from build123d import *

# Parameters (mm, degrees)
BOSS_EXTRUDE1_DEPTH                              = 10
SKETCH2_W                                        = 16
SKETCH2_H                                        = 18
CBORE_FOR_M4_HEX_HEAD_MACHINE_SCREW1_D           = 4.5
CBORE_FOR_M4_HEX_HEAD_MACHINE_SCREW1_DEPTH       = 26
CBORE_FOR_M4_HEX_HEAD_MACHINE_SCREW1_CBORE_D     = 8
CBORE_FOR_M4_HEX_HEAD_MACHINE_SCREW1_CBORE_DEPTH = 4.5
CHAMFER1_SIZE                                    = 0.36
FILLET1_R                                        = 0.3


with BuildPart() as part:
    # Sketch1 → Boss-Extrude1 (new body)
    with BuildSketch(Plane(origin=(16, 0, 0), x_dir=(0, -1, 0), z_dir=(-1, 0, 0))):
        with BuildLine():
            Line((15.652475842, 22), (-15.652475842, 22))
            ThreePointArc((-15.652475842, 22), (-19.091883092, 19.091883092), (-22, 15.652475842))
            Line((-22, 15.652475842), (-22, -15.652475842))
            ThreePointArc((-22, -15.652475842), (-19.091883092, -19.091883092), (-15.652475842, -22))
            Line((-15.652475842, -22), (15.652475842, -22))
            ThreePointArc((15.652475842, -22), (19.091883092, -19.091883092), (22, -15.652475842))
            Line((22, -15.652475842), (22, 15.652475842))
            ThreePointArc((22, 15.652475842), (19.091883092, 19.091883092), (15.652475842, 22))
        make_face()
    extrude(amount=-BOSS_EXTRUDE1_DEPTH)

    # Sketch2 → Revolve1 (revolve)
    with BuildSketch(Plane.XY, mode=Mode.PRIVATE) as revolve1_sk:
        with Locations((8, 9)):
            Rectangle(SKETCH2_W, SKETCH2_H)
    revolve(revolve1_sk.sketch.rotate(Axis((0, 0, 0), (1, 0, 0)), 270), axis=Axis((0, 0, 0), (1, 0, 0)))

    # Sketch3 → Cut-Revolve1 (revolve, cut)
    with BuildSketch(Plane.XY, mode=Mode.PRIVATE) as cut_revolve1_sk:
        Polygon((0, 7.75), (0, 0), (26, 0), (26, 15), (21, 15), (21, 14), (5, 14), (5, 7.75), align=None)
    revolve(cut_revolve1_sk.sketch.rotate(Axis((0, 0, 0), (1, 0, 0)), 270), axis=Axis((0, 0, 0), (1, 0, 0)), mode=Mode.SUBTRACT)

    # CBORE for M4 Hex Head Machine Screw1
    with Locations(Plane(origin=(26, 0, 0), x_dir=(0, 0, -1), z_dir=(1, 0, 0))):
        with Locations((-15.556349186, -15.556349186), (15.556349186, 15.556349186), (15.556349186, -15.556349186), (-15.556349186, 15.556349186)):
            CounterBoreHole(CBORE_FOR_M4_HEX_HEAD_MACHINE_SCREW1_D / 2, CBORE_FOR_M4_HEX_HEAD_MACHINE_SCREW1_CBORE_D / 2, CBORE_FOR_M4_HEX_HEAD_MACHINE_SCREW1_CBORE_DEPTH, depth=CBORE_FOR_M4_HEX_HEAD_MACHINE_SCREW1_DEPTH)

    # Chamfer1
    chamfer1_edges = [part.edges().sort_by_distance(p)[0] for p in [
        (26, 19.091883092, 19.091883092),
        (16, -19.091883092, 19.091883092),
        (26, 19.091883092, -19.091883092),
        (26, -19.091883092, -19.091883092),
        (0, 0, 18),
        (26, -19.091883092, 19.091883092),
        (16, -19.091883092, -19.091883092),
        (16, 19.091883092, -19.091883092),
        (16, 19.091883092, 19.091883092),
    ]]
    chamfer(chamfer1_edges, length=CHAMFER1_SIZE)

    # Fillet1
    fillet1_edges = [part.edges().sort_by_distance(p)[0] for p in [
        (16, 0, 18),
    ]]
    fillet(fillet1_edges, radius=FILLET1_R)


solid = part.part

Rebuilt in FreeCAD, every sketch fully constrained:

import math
import FreeCAD as App
import Part
import Sketcher
from FreeCAD import Vector


def edges_at(feature, points):
    """Names of the edges that pass closest to the given points."""
    edges = feature.Shape.Edges
    near = lambda p: min(range(len(edges)), key=lambda i: edges[i].distToShape(Part.Vertex(*p))[0])
    return sorted({f"Edge{near(p) + 1}" for p in points})

doc = App.newDocument("Part")
body = doc.addObject("PartDesign::Body", "Body")

# Sketch on YZ plane
sketch1 = doc.addObject("Sketcher::SketchObject", "Sketch")
body.addObject(sketch1)
sketch1.AttachmentSupport = (doc.YZ_Plane, [""])
sketch1.MapMode = "FlatFace"
sketch1.AttachmentOffset = App.Placement(Vector(0, 0, 16), App.Rotation())
sketch1.addGeometry(Part.LineSegment(Vector(-15.652476, 22, 0), Vector(15.652476, 22, 0)), False)
sketch1.addGeometry(Part.ArcOfCircle(Part.Circle(Vector(0, 0, 0), Vector(0, 0, 1), 27), math.radians(35.430945), math.radians(54.569055)), False)
sketch1.addGeometry(Part.LineSegment(Vector(22, 15.652476, 0), Vector(22, -15.652476, 0)), False)
sketch1.addGeometry(Part.ArcOfCircle(Part.Circle(Vector(0, 0, 0), Vector(0, 0, 1), 27), math.radians(-54.569055), math.radians(-35.430945)), False)
sketch1.addGeometry(Part.LineSegment(Vector(15.652476, -22, 0), Vector(-15.652476, -22, 0)), False)
sketch1.addGeometry(Part.ArcOfCircle(Part.Circle(Vector(0, 0, 0), Vector(0, 0, 1), 27), math.radians(-144.569055), math.radians(-125.430945)), False)
sketch1.addGeometry(Part.LineSegment(Vector(-22, -15.652476, 0), Vector(-22, 15.652476, 0)), False)
sketch1.addGeometry(Part.ArcOfCircle(Part.Circle(Vector(0, 0, 0), Vector(0, 0, 1), 27), math.radians(125.430945), math.radians(144.569055)), False)
sketch1.addConstraint(Sketcher.Constraint("Coincident", 0, 2, 1, 2))
sketch1.addConstraint(Sketcher.Constraint("Coincident", 1, 1, 2, 1))
sketch1.addConstraint(Sketcher.Constraint("Coincident", 2, 2, 3, 2))
sketch1.addConstraint(Sketcher.Constraint("Coincident", 3, 1, 4, 1))
sketch1.addConstraint(Sketcher.Constraint("Coincident", 4, 2, 5, 2))
sketch1.addConstraint(Sketcher.Constraint("Coincident", 5, 1, 6, 1))
sketch1.addConstraint(Sketcher.Constraint("Coincident", 6, 2, 7, 2))
sketch1.addConstraint(Sketcher.Constraint("Coincident", 7, 1, 0, 1))
sketch1.addConstraint(Sketcher.Constraint("Horizontal", 0))
sketch1.addConstraint(Sketcher.Constraint("Vertical", 2))
sketch1.addConstraint(Sketcher.Constraint("Horizontal", 4))
sketch1.addConstraint(Sketcher.Constraint("Vertical", 6))
sketch1.addConstraint(Sketcher.Constraint("Coincident", 1, 3, -1, 1))
sketch1.addConstraint(Sketcher.Constraint("Coincident", 3, 3, -1, 1))
sketch1.addConstraint(Sketcher.Constraint("Coincident", 5, 3, -1, 1))
sketch1.addConstraint(Sketcher.Constraint("Coincident", 7, 3, -1, 1))
sketch1.addConstraint(Sketcher.Constraint("Equal", 1, 3))
sketch1.addConstraint(Sketcher.Constraint("Equal", 3, 5))
sketch1.addConstraint(Sketcher.Constraint("Equal", 5, 7))
sketch1.addConstraint(Sketcher.Constraint("Horizontal", 2, 2, 5, 1))
sketch1.addConstraint(Sketcher.Constraint("Vertical", 0, 2, 3, 1))
sketch1.addConstraint(Sketcher.Constraint("Equal", 4, 2))
sketch1.addConstraint(Sketcher.Constraint("Radius", 1, 27.0))
sketch1.addConstraint(Sketcher.Constraint("DistanceY", -1, 1, 0, 2, 22.0))
pad1 = doc.addObject("PartDesign::Pad", "Pad")
body.addObject(pad1)
pad1.Profile = sketch1
pad1.Length = 10

# Sketch on XY plane
sketch2 = doc.addObject("Sketcher::SketchObject", "Sketch001")
body.addObject(sketch2)
sketch2.AttachmentSupport = (doc.XY_Plane, [""])
sketch2.MapMode = "FlatFace"
sketch2.addGeometry(Part.LineSegment(Vector(0, 18, 0), Vector(0, 0, 0)), False)
sketch2.addGeometry(Part.LineSegment(Vector(0, 0, 0), Vector(16, 0, 0)), False)
sketch2.addGeometry(Part.LineSegment(Vector(16, 0, 0), Vector(16, 18, 0)), False)
sketch2.addGeometry(Part.LineSegment(Vector(16, 18, 0), Vector(0, 18, 0)), False)
sketch2.addConstraint(Sketcher.Constraint("Coincident", 0, 2, 1, 1))
sketch2.addConstraint(Sketcher.Constraint("Coincident", 1, 2, 2, 1))
sketch2.addConstraint(Sketcher.Constraint("Coincident", 2, 2, 3, 1))
sketch2.addConstraint(Sketcher.Constraint("Coincident", 3, 2, 0, 1))
sketch2.addConstraint(Sketcher.Constraint("Vertical", 0))
sketch2.addConstraint(Sketcher.Constraint("Horizontal", 1))
sketch2.addConstraint(Sketcher.Constraint("Vertical", 2))
sketch2.addConstraint(Sketcher.Constraint("Horizontal", 3))
sketch2.addConstraint(Sketcher.Constraint("Coincident", 0, 2, -1, 1))
sketch2.addConstraint(Sketcher.Constraint("DistanceX", 1, 1, 1, 2, 16.0))
sketch2.addConstraint(Sketcher.Constraint("DistanceY", 0, 2, 0, 1, 18.0))
revolution = doc.addObject("PartDesign::Revolution", "Revolution")
body.addObject(revolution)
revolution.Profile = sketch2
revolution.ReferenceAxis = (sketch2, ["H_Axis"])
revolution.Angle = 360

# Sketch on XY plane
sketch3 = doc.addObject("Sketcher::SketchObject", "Sketch002")
body.addObject(sketch3)
sketch3.AttachmentSupport = (doc.XY_Plane, [""])
sketch3.MapMode = "FlatFace"
sketch3.addGeometry(Part.LineSegment(Vector(0, 7.75, 0), Vector(0, 0, 0)), False)
sketch3.addGeometry(Part.LineSegment(Vector(0, 0, 0), Vector(26, 0, 0)), False)
sketch3.addGeometry(Part.LineSegment(Vector(26, 0, 0), Vector(26, 15, 0)), False)
sketch3.addGeometry(Part.LineSegment(Vector(26, 15, 0), Vector(21, 15, 0)), False)
sketch3.addGeometry(Part.LineSegment(Vector(21, 15, 0), Vector(21, 14, 0)), False)
sketch3.addGeometry(Part.LineSegment(Vector(21, 14, 0), Vector(5, 14, 0)), False)
sketch3.addGeometry(Part.LineSegment(Vector(5, 14, 0), Vector(5, 7.75, 0)), False)
sketch3.addGeometry(Part.LineSegment(Vector(5, 7.75, 0), Vector(0, 7.75, 0)), False)
sketch3.addConstraint(Sketcher.Constraint("Coincident", 0, 2, 1, 1))
sketch3.addConstraint(Sketcher.Constraint("Coincident", 1, 2, 2, 1))
sketch3.addConstraint(Sketcher.Constraint("Coincident", 2, 2, 3, 1))
sketch3.addConstraint(Sketcher.Constraint("Coincident", 3, 2, 4, 1))
sketch3.addConstraint(Sketcher.Constraint("Coincident", 4, 2, 5, 1))
sketch3.addConstraint(Sketcher.Constraint("Coincident", 5, 2, 6, 1))
sketch3.addConstraint(Sketcher.Constraint("Coincident", 6, 2, 7, 1))
sketch3.addConstraint(Sketcher.Constraint("Coincident", 7, 2, 0, 1))
sketch3.addConstraint(Sketcher.Constraint("Vertical", 0))
sketch3.addConstraint(Sketcher.Constraint("Horizontal", 1))
sketch3.addConstraint(Sketcher.Constraint("Vertical", 2))
sketch3.addConstraint(Sketcher.Constraint("Horizontal", 3))
sketch3.addConstraint(Sketcher.Constraint("Vertical", 4))
sketch3.addConstraint(Sketcher.Constraint("Horizontal", 5))
sketch3.addConstraint(Sketcher.Constraint("Vertical", 6))
sketch3.addConstraint(Sketcher.Constraint("Horizontal", 7))
sketch3.addConstraint(Sketcher.Constraint("Coincident", 0, 2, -1, 1))
sketch3.addConstraint(Sketcher.Constraint("Equal", 3, 7))
sketch3.addConstraint(Sketcher.Constraint("DistanceX", 1, 1, 1, 2, 26.0))
sketch3.addConstraint(Sketcher.Constraint("DistanceX", 3, 2, 3, 1, 5.0))
sketch3.addConstraint(Sketcher.Constraint("DistanceY", 2, 1, 2, 2, 15.0))
sketch3.addConstraint(Sketcher.Constraint("DistanceY", 4, 2, 4, 1, 1.0))
sketch3.addConstraint(Sketcher.Constraint("DistanceY", 0, 2, 0, 1, 7.75))
groove = doc.addObject("PartDesign::Groove", "Groove")
body.addObject(groove)
groove.Profile = sketch3
groove.ReferenceAxis = (sketch3, ["H_Axis"])
groove.Angle = 360

# Sketch on YZ plane
sketch4 = doc.addObject("Sketcher::SketchObject", "Sketch003")
body.addObject(sketch4)
sketch4.AttachmentSupport = (doc.YZ_Plane, [""])
sketch4.MapMode = "FlatFace"
sketch4.AttachmentOffset = App.Placement(Vector(0, 0, 26), App.Rotation())
sketch4.addGeometry(Part.Circle(Vector(-15.556349, 15.556349, 0), Vector(0, 0, 1), 2.25), False)
sketch4.addGeometry(Part.Circle(Vector(15.556349, -15.556349, 0), Vector(0, 0, 1), 2.25), False)
sketch4.addGeometry(Part.Circle(Vector(-15.556349, -15.556349, 0), Vector(0, 0, 1), 2.25), False)
sketch4.addGeometry(Part.Circle(Vector(15.556349, 15.556349, 0), Vector(0, 0, 1), 2.25), False)
sketch4.addConstraint(Sketcher.Constraint("Equal", 0, 1))
sketch4.addConstraint(Sketcher.Constraint("Equal", 1, 2))
sketch4.addConstraint(Sketcher.Constraint("Equal", 2, 3))
sketch4.addConstraint(Sketcher.Constraint("Symmetric", 0, 3, 1, 3, -1, 1))
sketch4.addConstraint(Sketcher.Constraint("Symmetric", 2, 3, 3, 3, -1, 1))
sketch4.addConstraint(Sketcher.Constraint("Symmetric", 1, 3, 2, 3, -2))
sketch4.addConstraint(Sketcher.Constraint("Diameter", 0, 4.5))
sketch4.addConstraint(Sketcher.Constraint("DistanceX", 0, 3, 1, 3, 31.112698))
sketch4.addConstraint(Sketcher.Constraint("DistanceY", 1, 3, 0, 3, 31.112698))
doc.recompute()
hole = doc.addObject("PartDesign::Hole", "Hole")
body.addObject(hole)
hole.Profile = sketch4
hole.ThreadType = "None"
hole.Diameter = 4.5
hole.DepthType = "Dimension"
hole.Depth = 26
hole.DrillPoint = "Flat"
hole.HoleCutType = "Counterbore"
hole.HoleCutDiameter = 8
hole.HoleCutDepth = 4.5
doc.recompute()

chamfer = doc.addObject("PartDesign::Chamfer", "Chamfer")
body.addObject(chamfer)
chamfer.Base = (hole, edges_at(hole, [
    (26, 19.092, 19.092),
    (16, -19.092, 19.092),
    (26, 19.092, -19.092),
    (26, -19.092, -19.092),
    (0, 0, 18),
    (26, -19.092, 19.092),
    (16, -19.092, -19.092),
    (16, 19.092, -19.092),
    (16, 19.092, 19.092),
]))
chamfer.Size = 0.36
doc.recompute()

fillet = doc.addObject("PartDesign::Fillet", "Fillet")
body.addObject(fillet)
fillet.Base = (chamfer, edges_at(chamfer, [(16, 0, 18)]))
fillet.Radius = 0.3

doc.recompute()
